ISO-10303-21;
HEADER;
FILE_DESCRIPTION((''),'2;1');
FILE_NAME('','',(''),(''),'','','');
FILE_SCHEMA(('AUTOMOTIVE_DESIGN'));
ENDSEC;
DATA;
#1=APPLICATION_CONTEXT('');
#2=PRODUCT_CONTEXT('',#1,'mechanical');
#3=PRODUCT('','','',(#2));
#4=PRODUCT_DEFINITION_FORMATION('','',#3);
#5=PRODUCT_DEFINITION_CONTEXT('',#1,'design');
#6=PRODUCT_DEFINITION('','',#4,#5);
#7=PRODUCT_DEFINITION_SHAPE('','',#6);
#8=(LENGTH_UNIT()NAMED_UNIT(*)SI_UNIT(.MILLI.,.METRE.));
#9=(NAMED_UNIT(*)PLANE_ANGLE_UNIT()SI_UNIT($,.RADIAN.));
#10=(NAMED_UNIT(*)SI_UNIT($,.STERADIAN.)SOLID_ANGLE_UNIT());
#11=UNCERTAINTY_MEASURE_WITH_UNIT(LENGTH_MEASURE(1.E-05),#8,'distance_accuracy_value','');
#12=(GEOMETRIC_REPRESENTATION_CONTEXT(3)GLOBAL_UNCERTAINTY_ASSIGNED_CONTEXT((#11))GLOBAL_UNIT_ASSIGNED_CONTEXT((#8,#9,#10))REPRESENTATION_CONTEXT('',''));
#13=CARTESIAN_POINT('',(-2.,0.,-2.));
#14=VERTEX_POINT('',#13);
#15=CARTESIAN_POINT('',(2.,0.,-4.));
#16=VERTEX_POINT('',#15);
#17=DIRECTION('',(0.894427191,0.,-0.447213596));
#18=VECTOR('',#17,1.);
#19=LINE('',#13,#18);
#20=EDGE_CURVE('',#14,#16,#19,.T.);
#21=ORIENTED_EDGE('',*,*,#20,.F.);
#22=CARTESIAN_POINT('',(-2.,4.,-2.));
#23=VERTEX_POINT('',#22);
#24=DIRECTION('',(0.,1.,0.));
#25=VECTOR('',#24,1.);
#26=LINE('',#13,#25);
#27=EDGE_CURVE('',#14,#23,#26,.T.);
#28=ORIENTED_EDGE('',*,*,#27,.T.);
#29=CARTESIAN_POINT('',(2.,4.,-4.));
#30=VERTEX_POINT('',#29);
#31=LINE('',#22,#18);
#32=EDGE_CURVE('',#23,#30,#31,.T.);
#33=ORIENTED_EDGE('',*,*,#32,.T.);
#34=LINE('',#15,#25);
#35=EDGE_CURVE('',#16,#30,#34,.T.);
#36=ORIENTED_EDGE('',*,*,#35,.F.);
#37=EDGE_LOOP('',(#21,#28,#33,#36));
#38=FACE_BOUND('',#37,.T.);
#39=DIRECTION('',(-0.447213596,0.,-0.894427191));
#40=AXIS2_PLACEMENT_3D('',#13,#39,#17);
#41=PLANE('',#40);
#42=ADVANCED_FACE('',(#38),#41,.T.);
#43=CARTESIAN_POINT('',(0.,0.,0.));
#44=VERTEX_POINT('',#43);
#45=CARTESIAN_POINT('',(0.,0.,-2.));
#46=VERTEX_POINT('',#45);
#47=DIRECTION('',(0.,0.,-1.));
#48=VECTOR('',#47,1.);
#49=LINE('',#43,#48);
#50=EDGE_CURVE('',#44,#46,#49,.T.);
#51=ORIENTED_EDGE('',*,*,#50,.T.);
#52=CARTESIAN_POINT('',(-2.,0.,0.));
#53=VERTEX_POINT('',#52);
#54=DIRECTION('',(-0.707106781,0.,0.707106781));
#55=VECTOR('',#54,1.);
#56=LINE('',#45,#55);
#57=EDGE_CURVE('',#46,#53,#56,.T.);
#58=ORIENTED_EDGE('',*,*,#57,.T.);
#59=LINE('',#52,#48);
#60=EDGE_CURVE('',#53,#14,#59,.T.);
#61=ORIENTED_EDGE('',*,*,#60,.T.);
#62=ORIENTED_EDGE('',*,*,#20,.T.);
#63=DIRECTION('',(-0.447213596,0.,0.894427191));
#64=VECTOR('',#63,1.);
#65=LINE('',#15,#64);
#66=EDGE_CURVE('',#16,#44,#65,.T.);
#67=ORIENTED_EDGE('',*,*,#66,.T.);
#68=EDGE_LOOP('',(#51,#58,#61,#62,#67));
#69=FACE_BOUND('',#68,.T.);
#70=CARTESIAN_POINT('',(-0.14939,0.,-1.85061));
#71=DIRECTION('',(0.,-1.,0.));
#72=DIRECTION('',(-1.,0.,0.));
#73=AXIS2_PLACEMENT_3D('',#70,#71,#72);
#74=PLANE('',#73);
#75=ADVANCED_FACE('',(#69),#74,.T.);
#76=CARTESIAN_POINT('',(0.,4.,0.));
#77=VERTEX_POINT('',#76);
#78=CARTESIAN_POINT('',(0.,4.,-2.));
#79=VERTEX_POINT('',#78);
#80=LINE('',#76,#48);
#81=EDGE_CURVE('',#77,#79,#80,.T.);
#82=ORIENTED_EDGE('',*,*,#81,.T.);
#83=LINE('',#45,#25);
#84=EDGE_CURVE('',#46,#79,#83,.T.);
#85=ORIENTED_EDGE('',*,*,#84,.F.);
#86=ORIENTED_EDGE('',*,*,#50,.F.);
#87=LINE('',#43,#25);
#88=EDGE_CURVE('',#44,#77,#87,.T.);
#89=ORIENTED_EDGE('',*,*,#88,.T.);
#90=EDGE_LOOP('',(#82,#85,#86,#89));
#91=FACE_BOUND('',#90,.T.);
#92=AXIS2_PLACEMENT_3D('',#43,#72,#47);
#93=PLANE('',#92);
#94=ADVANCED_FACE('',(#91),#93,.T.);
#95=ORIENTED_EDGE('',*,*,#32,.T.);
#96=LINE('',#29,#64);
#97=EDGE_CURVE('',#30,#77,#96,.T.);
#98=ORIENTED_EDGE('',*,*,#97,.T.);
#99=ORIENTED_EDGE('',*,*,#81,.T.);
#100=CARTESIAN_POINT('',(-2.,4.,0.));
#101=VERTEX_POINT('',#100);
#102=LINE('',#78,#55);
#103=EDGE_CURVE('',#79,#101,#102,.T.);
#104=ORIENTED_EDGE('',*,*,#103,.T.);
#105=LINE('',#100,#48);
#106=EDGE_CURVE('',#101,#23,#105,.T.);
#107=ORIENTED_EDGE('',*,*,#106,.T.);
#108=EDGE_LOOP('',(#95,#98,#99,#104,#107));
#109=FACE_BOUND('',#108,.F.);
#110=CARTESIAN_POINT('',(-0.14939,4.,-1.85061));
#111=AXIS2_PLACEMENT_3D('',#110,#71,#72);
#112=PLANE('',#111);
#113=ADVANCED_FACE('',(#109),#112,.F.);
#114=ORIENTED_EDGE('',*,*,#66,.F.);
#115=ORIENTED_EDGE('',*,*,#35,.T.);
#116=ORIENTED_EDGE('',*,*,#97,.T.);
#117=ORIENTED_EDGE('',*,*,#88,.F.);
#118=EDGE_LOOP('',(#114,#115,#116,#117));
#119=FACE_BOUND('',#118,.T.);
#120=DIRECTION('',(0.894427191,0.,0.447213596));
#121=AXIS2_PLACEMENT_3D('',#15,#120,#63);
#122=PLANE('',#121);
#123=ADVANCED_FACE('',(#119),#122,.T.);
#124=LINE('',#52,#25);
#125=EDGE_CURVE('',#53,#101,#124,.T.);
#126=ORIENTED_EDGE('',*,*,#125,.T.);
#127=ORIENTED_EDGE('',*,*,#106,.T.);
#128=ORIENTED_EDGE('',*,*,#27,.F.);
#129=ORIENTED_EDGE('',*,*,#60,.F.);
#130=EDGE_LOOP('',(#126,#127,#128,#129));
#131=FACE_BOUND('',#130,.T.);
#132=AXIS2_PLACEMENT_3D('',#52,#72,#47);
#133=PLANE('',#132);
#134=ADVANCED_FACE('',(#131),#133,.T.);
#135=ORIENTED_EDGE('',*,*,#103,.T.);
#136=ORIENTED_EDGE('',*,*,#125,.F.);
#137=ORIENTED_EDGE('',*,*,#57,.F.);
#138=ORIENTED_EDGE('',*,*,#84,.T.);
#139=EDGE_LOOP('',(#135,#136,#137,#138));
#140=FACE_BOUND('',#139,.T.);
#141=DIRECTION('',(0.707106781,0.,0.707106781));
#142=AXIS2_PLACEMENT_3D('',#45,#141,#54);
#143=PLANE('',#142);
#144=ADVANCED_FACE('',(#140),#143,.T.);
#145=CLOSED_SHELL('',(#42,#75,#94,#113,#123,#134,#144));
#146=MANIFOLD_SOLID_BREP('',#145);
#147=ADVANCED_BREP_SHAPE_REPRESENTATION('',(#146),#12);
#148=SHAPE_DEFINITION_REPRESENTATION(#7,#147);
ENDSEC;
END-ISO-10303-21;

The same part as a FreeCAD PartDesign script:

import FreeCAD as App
import Part
import Sketcher

V = App.Vector
Q = App.Units.Quantity

doc = App.newDocument("Part")
params = doc.addObject("Spreadsheet::Sheet", "Params")
for row, (alias, value) in enumerate([
    ("sketch1_height", "2 mm"),
    ("pad1_length", "4 mm"),
], start=1):
    params.set(f"A{row}", alias)
    params.set(f"B{row}", "=" + value)
    params.setAlias(f"B{row}", alias)

body = doc.addObject("PartDesign::Body", "Body")

# Sketch on XZ plane
sketch1 = doc.addObject("Sketcher::SketchObject", "Sketch")
body.addObject(sketch1)
sketch1.AttachmentSupport = (doc.XZ_Plane, [""])
sketch1.MapMode = "FlatFace"
sketch1.addGeometry(Part.LineSegment(V(0, -2, 0), V(0, 0, 0)), False)
sketch1.addGeometry(Part.LineSegment(V(0, 0, 0), V(2, -4, 0)), False)
sketch1.addGeometry(Part.LineSegment(V(2, -4, 0), V(-2, -2, 0)), False)
sketch1.addGeometry(Part.LineSegment(V(-2, -2, 0), V(-2, 0, 0)), False)
sketch1.addGeometry(Part.LineSegment(V(-2, 0, 0), V(0, -2, 0)), False)
sketch1.addConstraint(Sketcher.Constraint("Coincident", 0, 2, 1, 1))
sketch1.addConstraint(Sketcher.Constraint("Coincident", 1, 2, 2, 1))
sketch1.addConstraint(Sketcher.Constraint("Coincident", 2, 2, 3, 1))
sketch1.addConstraint(Sketcher.Constraint("Coincident", 3, 2, 4, 1))
sketch1.addConstraint(Sketcher.Constraint("Coincident", 4, 2, 0, 1))
sketch1.addConstraint(Sketcher.Constraint("Vertical", 0))
sketch1.addConstraint(Sketcher.Constraint("Vertical", 3))
sketch1.addConstraint(Sketcher.Constraint("Coincident", 0, 2, -1, 1))
sketch1.addConstraint(Sketcher.Constraint("PointOnObject", 3, 2, -1))
sketch1.addConstraint(Sketcher.Constraint("Horizontal", 2, 2, 4, 2))
sketch1.addConstraint(Sketcher.Constraint("Equal", 1, 2))
sketch1.addConstraint(Sketcher.Constraint("DistanceY", 0, 1, 0, 2, 2.0))
sketch1.addConstraint(Sketcher.Constraint("Angle", 4, Q("-45 deg")))
sketch1.addConstraint(Sketcher.Constraint("DistanceX", -1, 1, 1, 2, 2.0))
sketch1.setExpression("Constraints[11]", "Params.sketch1_height")
pad1 = doc.addObject("PartDesign::Pad", "Pad")
body.addObject(pad1)
pad1.Profile = sketch1
pad1.setExpression("Length", "Params.pad1_length")
pad1.Reversed = True

doc.recompute()
